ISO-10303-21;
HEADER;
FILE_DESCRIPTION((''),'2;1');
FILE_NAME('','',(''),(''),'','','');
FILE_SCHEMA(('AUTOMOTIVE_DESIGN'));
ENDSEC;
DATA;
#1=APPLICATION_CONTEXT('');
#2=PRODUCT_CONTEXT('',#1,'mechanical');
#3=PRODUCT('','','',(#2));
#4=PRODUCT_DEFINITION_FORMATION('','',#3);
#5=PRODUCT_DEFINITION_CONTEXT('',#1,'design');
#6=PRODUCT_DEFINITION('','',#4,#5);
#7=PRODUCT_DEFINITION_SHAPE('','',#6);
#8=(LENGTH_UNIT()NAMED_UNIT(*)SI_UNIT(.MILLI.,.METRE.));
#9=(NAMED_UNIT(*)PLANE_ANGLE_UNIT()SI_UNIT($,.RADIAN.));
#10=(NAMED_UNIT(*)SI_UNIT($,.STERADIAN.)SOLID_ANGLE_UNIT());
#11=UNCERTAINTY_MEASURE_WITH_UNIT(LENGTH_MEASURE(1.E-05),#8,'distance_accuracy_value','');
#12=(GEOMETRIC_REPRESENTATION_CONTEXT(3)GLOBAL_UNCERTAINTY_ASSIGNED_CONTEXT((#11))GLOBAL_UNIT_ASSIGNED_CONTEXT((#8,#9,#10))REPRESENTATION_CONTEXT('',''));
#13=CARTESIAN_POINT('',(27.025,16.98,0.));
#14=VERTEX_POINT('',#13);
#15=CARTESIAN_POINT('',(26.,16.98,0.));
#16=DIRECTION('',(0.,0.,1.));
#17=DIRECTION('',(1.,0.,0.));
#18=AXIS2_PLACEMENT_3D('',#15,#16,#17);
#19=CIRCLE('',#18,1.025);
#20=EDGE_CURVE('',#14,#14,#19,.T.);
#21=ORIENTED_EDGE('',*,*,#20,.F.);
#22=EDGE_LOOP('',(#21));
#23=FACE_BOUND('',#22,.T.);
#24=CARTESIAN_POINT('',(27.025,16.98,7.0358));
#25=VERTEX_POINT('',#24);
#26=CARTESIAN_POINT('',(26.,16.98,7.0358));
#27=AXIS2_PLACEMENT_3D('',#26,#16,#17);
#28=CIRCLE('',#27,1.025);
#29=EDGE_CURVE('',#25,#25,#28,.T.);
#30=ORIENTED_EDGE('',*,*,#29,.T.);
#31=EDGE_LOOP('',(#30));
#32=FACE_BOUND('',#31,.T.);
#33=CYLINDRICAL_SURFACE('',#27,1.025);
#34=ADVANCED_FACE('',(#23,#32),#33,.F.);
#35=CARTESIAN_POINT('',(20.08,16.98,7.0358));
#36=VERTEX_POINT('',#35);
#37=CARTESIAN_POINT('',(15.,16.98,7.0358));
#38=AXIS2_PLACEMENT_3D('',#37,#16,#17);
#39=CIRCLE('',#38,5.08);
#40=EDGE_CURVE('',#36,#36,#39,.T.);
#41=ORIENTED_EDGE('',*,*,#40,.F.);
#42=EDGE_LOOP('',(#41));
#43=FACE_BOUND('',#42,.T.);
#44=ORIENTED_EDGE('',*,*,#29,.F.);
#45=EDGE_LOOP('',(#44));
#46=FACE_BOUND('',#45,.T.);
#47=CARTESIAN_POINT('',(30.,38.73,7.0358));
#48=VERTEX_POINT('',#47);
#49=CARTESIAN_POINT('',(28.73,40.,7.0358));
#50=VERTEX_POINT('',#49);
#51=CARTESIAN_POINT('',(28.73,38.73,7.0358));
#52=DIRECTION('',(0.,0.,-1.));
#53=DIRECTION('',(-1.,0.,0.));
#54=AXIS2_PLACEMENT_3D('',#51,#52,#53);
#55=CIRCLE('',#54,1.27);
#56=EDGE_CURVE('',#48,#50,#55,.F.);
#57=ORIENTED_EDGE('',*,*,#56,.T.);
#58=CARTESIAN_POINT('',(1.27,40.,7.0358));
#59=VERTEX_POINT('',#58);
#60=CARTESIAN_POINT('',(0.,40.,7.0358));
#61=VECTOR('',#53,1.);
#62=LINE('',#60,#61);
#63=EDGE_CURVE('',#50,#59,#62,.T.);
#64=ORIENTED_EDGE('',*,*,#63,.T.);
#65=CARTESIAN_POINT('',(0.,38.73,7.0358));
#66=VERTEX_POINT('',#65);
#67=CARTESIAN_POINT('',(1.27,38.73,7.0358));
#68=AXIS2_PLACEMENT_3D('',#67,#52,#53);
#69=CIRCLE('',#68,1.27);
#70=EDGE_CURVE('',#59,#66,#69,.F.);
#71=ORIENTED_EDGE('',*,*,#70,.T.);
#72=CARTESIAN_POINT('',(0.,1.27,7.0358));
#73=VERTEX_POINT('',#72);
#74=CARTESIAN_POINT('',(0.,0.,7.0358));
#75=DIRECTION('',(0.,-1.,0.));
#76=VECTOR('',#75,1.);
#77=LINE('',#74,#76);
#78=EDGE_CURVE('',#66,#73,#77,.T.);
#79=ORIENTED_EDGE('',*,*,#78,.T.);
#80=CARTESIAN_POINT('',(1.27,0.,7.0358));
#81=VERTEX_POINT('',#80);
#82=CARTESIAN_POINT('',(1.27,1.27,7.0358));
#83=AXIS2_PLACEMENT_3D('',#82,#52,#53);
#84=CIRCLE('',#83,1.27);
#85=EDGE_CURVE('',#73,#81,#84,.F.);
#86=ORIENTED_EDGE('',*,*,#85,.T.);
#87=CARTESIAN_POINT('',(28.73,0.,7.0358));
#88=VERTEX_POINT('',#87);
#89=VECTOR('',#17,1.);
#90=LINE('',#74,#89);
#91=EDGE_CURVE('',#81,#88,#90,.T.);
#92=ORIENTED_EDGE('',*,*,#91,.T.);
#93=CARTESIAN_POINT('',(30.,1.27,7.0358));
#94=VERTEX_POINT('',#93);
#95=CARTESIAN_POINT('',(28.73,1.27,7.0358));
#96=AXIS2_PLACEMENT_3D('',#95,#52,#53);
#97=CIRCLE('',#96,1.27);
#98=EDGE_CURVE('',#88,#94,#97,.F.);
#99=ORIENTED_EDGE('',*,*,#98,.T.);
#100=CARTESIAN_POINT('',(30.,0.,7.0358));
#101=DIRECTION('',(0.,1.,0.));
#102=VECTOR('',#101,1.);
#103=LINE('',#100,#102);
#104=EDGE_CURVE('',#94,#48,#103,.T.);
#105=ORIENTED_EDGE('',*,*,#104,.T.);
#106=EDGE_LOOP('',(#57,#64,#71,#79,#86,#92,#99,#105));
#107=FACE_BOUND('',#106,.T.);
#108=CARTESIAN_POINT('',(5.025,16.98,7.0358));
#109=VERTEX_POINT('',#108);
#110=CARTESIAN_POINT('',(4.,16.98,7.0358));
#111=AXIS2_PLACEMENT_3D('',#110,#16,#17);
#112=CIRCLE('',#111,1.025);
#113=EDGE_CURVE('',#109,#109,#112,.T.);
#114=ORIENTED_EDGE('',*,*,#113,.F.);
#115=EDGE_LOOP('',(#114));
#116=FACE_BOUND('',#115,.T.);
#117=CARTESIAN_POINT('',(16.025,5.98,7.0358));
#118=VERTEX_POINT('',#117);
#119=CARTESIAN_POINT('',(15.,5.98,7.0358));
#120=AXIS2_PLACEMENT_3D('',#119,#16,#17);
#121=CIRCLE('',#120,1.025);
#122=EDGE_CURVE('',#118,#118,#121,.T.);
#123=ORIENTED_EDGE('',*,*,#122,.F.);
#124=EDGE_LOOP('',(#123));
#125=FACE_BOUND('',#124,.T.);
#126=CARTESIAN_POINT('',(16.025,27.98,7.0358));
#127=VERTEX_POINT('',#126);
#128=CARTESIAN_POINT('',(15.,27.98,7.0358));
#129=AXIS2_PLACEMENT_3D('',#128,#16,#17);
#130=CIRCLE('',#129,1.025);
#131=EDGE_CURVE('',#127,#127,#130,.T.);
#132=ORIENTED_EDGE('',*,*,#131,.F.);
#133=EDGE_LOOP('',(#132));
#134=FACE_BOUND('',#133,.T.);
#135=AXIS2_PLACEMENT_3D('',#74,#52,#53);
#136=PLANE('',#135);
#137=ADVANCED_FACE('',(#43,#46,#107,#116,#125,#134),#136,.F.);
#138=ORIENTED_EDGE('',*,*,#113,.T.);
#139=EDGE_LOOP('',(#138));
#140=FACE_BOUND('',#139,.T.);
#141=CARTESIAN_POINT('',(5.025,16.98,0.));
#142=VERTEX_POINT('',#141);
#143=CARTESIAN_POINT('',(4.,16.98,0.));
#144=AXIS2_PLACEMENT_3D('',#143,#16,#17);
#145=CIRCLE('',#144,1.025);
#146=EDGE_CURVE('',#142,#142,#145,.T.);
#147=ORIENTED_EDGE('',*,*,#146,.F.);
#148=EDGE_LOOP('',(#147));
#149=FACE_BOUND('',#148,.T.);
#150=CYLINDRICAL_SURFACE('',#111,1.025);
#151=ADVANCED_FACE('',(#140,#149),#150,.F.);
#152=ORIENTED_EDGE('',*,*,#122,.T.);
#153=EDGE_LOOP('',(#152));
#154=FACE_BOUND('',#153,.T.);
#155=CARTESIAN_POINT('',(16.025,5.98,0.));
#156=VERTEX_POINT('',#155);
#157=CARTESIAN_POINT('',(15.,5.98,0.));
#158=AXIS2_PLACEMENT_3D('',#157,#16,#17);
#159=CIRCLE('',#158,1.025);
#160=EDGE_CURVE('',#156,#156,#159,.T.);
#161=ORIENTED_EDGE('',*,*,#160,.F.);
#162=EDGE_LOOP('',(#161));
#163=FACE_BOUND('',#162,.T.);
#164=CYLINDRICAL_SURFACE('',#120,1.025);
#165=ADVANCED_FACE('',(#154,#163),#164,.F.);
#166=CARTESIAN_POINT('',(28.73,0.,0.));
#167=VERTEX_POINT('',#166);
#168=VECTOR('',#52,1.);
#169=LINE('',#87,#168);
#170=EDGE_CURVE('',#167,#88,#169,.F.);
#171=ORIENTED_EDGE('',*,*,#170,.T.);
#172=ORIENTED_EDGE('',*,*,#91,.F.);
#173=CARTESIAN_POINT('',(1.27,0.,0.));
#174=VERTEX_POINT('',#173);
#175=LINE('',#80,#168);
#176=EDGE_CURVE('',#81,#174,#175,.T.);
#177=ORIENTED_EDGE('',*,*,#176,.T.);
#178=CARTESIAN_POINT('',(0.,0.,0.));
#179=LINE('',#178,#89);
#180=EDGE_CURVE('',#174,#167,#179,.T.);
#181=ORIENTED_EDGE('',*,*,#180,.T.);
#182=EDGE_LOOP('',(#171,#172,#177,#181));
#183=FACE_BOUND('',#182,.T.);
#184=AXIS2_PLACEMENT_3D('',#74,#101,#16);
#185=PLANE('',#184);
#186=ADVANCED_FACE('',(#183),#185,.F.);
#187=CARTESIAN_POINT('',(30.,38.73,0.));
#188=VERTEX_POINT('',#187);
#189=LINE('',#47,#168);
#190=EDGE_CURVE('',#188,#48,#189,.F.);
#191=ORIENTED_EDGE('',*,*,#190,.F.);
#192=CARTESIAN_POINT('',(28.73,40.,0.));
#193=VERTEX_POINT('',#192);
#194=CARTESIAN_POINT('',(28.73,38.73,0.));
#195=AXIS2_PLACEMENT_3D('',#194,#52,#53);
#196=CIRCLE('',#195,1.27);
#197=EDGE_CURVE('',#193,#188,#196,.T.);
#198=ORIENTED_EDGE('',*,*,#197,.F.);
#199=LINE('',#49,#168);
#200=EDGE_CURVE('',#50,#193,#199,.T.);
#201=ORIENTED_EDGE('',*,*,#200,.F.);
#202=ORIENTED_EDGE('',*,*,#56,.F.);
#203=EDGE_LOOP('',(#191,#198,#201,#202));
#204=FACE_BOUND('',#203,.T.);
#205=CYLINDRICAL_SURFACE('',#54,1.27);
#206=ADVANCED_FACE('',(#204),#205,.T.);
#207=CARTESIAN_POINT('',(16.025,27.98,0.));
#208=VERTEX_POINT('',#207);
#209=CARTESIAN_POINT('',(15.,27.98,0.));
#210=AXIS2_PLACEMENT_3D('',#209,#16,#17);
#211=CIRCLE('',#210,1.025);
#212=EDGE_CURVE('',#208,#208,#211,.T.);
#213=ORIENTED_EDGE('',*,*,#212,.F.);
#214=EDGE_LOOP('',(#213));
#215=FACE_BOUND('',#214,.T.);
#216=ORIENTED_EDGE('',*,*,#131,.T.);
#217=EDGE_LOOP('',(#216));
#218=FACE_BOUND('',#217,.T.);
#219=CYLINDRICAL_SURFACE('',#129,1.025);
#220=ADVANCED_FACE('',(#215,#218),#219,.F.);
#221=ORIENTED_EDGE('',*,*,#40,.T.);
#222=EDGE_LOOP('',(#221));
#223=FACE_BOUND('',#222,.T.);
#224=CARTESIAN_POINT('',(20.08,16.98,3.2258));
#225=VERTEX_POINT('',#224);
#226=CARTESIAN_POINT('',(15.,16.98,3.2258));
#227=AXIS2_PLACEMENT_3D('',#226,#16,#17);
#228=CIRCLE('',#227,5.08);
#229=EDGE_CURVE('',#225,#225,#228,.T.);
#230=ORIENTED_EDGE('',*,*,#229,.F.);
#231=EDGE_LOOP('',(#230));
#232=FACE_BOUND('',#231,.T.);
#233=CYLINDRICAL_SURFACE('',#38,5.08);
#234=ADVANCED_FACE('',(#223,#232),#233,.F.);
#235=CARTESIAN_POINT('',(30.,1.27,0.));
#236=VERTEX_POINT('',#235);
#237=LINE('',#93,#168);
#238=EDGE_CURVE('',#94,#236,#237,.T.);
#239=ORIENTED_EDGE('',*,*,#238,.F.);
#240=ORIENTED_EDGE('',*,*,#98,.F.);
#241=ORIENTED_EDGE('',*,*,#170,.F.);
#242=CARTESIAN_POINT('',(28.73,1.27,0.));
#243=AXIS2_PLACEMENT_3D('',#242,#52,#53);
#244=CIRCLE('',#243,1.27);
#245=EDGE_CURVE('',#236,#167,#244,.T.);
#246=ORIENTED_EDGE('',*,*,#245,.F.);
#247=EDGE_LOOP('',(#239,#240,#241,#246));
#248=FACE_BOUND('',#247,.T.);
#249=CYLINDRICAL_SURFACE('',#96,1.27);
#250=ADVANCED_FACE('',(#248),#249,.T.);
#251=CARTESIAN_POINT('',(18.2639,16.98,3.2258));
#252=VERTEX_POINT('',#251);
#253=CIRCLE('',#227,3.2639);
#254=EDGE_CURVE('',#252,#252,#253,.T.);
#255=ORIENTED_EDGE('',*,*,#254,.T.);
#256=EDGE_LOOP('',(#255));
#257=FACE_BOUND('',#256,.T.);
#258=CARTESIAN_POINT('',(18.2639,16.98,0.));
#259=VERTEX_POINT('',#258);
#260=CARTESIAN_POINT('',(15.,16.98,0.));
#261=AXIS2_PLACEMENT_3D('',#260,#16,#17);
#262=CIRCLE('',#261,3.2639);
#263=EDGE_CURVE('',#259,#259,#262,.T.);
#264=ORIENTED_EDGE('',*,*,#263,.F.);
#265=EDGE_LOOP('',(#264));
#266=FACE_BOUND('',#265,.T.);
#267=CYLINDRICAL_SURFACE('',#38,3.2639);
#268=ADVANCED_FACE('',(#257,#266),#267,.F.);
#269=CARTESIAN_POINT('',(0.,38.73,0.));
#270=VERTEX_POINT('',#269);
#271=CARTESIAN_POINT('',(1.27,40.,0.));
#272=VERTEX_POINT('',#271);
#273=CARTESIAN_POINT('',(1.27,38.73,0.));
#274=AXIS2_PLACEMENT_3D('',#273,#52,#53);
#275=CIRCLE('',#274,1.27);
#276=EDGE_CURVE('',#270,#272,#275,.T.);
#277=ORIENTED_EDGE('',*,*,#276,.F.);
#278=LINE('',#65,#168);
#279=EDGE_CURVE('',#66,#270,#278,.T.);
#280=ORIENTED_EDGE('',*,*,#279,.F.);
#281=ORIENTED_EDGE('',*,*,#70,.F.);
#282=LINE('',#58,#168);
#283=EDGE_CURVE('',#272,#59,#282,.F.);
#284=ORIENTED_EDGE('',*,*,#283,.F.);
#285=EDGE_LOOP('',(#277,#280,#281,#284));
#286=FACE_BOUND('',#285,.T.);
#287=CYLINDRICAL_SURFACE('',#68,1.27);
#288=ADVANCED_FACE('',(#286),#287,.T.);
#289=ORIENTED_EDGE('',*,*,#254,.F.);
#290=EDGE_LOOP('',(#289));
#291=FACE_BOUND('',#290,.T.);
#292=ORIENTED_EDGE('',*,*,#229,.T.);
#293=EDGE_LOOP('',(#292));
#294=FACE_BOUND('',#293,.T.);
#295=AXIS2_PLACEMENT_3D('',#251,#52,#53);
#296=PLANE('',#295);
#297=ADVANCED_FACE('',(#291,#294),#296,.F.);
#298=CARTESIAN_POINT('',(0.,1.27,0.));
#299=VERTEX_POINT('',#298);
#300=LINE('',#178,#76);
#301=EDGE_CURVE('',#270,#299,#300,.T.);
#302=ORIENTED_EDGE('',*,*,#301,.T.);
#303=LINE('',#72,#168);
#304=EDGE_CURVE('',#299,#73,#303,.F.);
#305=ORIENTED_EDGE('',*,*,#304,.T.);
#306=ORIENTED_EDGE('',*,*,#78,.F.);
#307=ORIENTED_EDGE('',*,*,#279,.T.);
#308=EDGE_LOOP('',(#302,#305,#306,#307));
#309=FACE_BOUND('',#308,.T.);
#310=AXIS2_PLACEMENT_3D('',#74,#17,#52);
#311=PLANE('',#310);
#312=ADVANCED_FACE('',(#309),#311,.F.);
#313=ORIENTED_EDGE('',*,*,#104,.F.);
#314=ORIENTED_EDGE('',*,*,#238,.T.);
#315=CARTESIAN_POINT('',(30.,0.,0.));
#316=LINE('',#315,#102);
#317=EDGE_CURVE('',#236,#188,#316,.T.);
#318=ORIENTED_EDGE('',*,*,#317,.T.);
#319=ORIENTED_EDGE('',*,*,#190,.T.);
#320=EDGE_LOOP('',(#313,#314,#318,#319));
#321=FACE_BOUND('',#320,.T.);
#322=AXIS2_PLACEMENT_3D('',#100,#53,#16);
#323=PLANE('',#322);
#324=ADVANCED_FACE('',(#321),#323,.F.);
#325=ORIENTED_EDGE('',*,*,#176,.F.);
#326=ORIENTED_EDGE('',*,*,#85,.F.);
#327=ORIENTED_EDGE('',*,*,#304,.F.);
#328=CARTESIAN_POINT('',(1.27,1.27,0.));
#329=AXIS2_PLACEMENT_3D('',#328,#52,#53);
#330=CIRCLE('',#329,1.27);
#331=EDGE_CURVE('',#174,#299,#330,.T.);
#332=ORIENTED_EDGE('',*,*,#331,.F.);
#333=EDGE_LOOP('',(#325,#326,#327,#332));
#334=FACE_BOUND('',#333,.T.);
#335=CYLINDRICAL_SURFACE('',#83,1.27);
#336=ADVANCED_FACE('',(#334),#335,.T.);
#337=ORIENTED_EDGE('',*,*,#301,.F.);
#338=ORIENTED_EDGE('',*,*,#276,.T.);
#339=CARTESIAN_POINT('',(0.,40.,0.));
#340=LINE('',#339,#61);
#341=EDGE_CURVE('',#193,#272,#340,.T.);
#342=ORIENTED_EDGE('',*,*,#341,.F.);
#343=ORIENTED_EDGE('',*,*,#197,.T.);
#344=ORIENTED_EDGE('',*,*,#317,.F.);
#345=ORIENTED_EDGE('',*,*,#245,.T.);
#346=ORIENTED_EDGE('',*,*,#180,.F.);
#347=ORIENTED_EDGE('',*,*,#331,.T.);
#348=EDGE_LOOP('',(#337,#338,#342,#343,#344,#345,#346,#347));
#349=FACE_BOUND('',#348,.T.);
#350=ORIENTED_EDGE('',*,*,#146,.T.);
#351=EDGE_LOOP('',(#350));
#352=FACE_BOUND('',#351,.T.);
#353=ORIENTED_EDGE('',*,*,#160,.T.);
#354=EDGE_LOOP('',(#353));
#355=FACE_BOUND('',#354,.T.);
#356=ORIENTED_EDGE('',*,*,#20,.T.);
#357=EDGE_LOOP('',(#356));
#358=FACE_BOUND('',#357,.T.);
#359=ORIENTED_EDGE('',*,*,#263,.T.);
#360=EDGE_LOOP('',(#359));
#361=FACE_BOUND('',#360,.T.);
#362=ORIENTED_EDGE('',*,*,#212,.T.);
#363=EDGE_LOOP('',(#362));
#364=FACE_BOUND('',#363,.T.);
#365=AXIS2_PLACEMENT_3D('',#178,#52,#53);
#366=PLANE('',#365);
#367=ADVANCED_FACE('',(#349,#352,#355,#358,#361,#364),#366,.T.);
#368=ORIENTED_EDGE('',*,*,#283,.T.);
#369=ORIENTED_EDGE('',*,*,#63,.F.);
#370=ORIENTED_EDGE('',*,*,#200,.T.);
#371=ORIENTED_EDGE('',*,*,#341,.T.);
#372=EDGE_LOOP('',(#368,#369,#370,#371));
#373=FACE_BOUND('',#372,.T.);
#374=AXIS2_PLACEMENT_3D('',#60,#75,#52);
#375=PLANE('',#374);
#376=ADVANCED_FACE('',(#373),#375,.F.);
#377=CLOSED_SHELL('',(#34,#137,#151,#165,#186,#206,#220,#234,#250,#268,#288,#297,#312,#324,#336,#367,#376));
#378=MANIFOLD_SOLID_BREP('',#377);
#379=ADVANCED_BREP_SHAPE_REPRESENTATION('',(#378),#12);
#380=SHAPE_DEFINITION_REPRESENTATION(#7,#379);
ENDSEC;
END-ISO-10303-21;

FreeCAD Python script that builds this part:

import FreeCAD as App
import Part
import Sketcher
from FreeCAD import Vector
Q = App.Units.Quantity


def edges_at(feature, points):
    """Names of the edges that pass closest to the given points."""
    edges = feature.Shape.Edges
    near = lambda p: min(range(len(edges)), key=lambda i: edges[i].distToShape(Part.Vertex(*p))[0])
    return sorted({f"Edge{near(p) + 1}" for p in points})


def add_polygon(sketch, points):
    """Adds a closed chain of lines whose ends are joined by coincident constraints."""
    first, n = sketch.GeometryCount, len(points)
    for a, b in zip(points, points[1:] + points[:1]):
        sketch.addGeometry(Part.LineSegment(App.Vector(*a, 0), App.Vector(*b, 0)), False)
    for i in range(n):
        sketch.addConstraint(Sketcher.Constraint("Coincident", first + i, 2, first + (i + 1) % n, 1))

doc = App.newDocument("Part")
params = doc.addObject("Spreadsheet::Sheet", "Params")
for row, (alias, value) in enumerate([
    ("pad1_length", "0.277 in"),
    ("hole_diameter", "2.05 mm"),
    ("sketch3_diameter", "0.257 in"),
    ("hole2_diameter", "0.257 in"),
    ("hole2_cbore_diameter", "0.4 in"),
    ("hole2_cbore_depth", "0.15 in"),
    ("fillet_radius", "0.05 in"),
], start=1):
    params.set(f"A{row}", alias)
    params.set(f"B{row}", "=" + value)
    params.setAlias(f"B{row}", alias)

body = doc.addObject("PartDesign::Body", "Body")

sketch1 = doc.addObject("Sketcher::SketchObject", "Sketch")
body.addObject(sketch1)
sketch1.AttachmentSupport = (doc.XY_Plane, [""])
sketch1.MapMode = "FlatFace"
add_polygon(sketch1, [(0, 40), (0, 0), (30, 0), (30, 40)])
sketch1.addConstraint(Sketcher.Constraint("Vertical", 0))
sketch1.addConstraint(Sketcher.Constraint("Horizontal", 1))
sketch1.addConstraint(Sketcher.Constraint("Vertical", 2))
sketch1.addConstraint(Sketcher.Constraint("Horizontal", 3))
sketch1.addConstraint(Sketcher.Constraint("Coincident", 0, 2, -1, 1))
sketch1.addConstraint(Sketcher.Constraint("DistanceX", 1, 1, 1, 2, 30.0))
sketch1.addConstraint(Sketcher.Constraint("DistanceY", 0, 2, 0, 1, 40.0))
pad1 = doc.addObject("PartDesign::Pad", "Pad")
body.addObject(pad1)
pad1.Profile = sketch1
pad1.setExpression("Length", "Params.pad1_length")

sketch2 = doc.addObject("Sketcher::SketchObject", "Sketch001")
body.addObject(sketch2)
sketch2.AttachmentSupport = (doc.XY_Plane, [""])
sketch2.MapMode = "FlatFace"
sketch2.AttachmentOffset = App.Placement(Vector(0, 0, 0.277 * 25.4), App.Rotation())
sketch2.addGeometry(Part.Circle(Vector(15, 28, 0), Vector(0, 0, 1), 1), False)
sketch2.addGeometry(Part.Circle(Vector(26, 17, 0), Vector(0, 0, 1), 1), False)
sketch2.addGeometry(Part.Circle(Vector(15, 6, 0), Vector(0, 0, 1), 1), False)
sketch2.addGeometry(Part.Circle(Vector(4, 17, 0), Vector(0, 0, 1), 1), False)
sketch2.addConstraint(Sketcher.Constraint("Equal", 0, 1))
sketch2.addConstraint(Sketcher.Constraint("Equal", 1, 2))
sketch2.addConstraint(Sketcher.Constraint("Equal", 2, 3))
sketch2.addConstraint(Sketcher.Constraint("Horizontal", 1, 3, 3, 3))
sketch2.addConstraint(Sketcher.Constraint("Vertical", 0, 3, 2, 3))
sketch2.addConstraint(Sketcher.Constraint("Diameter", 0, 2.05))
sketch2.addConstraint(Sketcher.Constraint("DistanceX", -1, 1, 0, 3, 15.0))
sketch2.addConstraint(Sketcher.Constraint("DistanceY", -1, 1, 0, 3, 27.98))
sketch2.addConstraint(Sketcher.Constraint("DistanceX", -1, 1, 1, 3, 26.0))
sketch2.addConstraint(Sketcher.Constraint("DistanceY", -1, 1, 1, 3, 16.98))
sketch2.addConstraint(Sketcher.Constraint("DistanceY", -1, 1, 2, 3, 5.98))
sketch2.addConstraint(Sketcher.Constraint("DistanceX", -1, 1, 3, 3, 4.0))
doc.recompute()
hole = doc.addObject("PartDesign::Hole", "Hole")
body.addObject(hole)
hole.Profile = sketch2
hole.ThreadType = "None"
hole.setExpression("Diameter", "Params.hole_diameter")
hole.DepthType = "ThroughAll"

sketch3 = doc.addObject("Sketcher::SketchObject", "Sketch002")
body.addObject(sketch3)
sketch3.AttachmentSupport = (doc.XY_Plane, [""])
sketch3.MapMode = "FlatFace"
sketch3.AttachmentOffset = App.Placement(Vector(0, 0, 0.277 * 25.4), App.Rotation())
sketch3.addGeometry(Part.Circle(Vector(15, 17, 0), Vector(0, 0, 1), 3.3), False)
sketch3.addConstraint(Sketcher.Constraint("Diameter", 0, Q("0.257 in")))
sketch3.addConstraint(Sketcher.Constraint("DistanceX", -1, 1, 0, 3, 15.0))
sketch3.addConstraint(Sketcher.Constraint("DistanceY", -1, 1, 0, 3, 16.98))
sketch3.setExpression("Constraints[0]", "Params.sketch3_diameter")
doc.recompute()
hole2 = doc.addObject("PartDesign::Hole", "Hole001")
body.addObject(hole2)
hole2.Profile = sketch3
hole2.ThreadType = "None"
hole2.setExpression("Diameter", "Params.hole2_diameter")
hole2.DepthType = "ThroughAll"
hole2.HoleCutType = "Counterbore"
hole2.setExpression("HoleCutDiameter", "Params.hole2_cbore_diameter")
hole2.setExpression("HoleCutDepth", "Params.hole2_cbore_depth")
doc.recompute()

fillet = doc.addObject("PartDesign::Fillet", "Fillet")
body.addObject(fillet)
fillet.Base = (hole2, edges_at(hole2, [
    (0, 40, 3.518),
    (30, 40, 3.518),
    (30, 0, 3.518),
    (0, 0, 3.518),
]))
fillet.setExpression("Radius", "Params.fillet_radius")

doc.recompute()
